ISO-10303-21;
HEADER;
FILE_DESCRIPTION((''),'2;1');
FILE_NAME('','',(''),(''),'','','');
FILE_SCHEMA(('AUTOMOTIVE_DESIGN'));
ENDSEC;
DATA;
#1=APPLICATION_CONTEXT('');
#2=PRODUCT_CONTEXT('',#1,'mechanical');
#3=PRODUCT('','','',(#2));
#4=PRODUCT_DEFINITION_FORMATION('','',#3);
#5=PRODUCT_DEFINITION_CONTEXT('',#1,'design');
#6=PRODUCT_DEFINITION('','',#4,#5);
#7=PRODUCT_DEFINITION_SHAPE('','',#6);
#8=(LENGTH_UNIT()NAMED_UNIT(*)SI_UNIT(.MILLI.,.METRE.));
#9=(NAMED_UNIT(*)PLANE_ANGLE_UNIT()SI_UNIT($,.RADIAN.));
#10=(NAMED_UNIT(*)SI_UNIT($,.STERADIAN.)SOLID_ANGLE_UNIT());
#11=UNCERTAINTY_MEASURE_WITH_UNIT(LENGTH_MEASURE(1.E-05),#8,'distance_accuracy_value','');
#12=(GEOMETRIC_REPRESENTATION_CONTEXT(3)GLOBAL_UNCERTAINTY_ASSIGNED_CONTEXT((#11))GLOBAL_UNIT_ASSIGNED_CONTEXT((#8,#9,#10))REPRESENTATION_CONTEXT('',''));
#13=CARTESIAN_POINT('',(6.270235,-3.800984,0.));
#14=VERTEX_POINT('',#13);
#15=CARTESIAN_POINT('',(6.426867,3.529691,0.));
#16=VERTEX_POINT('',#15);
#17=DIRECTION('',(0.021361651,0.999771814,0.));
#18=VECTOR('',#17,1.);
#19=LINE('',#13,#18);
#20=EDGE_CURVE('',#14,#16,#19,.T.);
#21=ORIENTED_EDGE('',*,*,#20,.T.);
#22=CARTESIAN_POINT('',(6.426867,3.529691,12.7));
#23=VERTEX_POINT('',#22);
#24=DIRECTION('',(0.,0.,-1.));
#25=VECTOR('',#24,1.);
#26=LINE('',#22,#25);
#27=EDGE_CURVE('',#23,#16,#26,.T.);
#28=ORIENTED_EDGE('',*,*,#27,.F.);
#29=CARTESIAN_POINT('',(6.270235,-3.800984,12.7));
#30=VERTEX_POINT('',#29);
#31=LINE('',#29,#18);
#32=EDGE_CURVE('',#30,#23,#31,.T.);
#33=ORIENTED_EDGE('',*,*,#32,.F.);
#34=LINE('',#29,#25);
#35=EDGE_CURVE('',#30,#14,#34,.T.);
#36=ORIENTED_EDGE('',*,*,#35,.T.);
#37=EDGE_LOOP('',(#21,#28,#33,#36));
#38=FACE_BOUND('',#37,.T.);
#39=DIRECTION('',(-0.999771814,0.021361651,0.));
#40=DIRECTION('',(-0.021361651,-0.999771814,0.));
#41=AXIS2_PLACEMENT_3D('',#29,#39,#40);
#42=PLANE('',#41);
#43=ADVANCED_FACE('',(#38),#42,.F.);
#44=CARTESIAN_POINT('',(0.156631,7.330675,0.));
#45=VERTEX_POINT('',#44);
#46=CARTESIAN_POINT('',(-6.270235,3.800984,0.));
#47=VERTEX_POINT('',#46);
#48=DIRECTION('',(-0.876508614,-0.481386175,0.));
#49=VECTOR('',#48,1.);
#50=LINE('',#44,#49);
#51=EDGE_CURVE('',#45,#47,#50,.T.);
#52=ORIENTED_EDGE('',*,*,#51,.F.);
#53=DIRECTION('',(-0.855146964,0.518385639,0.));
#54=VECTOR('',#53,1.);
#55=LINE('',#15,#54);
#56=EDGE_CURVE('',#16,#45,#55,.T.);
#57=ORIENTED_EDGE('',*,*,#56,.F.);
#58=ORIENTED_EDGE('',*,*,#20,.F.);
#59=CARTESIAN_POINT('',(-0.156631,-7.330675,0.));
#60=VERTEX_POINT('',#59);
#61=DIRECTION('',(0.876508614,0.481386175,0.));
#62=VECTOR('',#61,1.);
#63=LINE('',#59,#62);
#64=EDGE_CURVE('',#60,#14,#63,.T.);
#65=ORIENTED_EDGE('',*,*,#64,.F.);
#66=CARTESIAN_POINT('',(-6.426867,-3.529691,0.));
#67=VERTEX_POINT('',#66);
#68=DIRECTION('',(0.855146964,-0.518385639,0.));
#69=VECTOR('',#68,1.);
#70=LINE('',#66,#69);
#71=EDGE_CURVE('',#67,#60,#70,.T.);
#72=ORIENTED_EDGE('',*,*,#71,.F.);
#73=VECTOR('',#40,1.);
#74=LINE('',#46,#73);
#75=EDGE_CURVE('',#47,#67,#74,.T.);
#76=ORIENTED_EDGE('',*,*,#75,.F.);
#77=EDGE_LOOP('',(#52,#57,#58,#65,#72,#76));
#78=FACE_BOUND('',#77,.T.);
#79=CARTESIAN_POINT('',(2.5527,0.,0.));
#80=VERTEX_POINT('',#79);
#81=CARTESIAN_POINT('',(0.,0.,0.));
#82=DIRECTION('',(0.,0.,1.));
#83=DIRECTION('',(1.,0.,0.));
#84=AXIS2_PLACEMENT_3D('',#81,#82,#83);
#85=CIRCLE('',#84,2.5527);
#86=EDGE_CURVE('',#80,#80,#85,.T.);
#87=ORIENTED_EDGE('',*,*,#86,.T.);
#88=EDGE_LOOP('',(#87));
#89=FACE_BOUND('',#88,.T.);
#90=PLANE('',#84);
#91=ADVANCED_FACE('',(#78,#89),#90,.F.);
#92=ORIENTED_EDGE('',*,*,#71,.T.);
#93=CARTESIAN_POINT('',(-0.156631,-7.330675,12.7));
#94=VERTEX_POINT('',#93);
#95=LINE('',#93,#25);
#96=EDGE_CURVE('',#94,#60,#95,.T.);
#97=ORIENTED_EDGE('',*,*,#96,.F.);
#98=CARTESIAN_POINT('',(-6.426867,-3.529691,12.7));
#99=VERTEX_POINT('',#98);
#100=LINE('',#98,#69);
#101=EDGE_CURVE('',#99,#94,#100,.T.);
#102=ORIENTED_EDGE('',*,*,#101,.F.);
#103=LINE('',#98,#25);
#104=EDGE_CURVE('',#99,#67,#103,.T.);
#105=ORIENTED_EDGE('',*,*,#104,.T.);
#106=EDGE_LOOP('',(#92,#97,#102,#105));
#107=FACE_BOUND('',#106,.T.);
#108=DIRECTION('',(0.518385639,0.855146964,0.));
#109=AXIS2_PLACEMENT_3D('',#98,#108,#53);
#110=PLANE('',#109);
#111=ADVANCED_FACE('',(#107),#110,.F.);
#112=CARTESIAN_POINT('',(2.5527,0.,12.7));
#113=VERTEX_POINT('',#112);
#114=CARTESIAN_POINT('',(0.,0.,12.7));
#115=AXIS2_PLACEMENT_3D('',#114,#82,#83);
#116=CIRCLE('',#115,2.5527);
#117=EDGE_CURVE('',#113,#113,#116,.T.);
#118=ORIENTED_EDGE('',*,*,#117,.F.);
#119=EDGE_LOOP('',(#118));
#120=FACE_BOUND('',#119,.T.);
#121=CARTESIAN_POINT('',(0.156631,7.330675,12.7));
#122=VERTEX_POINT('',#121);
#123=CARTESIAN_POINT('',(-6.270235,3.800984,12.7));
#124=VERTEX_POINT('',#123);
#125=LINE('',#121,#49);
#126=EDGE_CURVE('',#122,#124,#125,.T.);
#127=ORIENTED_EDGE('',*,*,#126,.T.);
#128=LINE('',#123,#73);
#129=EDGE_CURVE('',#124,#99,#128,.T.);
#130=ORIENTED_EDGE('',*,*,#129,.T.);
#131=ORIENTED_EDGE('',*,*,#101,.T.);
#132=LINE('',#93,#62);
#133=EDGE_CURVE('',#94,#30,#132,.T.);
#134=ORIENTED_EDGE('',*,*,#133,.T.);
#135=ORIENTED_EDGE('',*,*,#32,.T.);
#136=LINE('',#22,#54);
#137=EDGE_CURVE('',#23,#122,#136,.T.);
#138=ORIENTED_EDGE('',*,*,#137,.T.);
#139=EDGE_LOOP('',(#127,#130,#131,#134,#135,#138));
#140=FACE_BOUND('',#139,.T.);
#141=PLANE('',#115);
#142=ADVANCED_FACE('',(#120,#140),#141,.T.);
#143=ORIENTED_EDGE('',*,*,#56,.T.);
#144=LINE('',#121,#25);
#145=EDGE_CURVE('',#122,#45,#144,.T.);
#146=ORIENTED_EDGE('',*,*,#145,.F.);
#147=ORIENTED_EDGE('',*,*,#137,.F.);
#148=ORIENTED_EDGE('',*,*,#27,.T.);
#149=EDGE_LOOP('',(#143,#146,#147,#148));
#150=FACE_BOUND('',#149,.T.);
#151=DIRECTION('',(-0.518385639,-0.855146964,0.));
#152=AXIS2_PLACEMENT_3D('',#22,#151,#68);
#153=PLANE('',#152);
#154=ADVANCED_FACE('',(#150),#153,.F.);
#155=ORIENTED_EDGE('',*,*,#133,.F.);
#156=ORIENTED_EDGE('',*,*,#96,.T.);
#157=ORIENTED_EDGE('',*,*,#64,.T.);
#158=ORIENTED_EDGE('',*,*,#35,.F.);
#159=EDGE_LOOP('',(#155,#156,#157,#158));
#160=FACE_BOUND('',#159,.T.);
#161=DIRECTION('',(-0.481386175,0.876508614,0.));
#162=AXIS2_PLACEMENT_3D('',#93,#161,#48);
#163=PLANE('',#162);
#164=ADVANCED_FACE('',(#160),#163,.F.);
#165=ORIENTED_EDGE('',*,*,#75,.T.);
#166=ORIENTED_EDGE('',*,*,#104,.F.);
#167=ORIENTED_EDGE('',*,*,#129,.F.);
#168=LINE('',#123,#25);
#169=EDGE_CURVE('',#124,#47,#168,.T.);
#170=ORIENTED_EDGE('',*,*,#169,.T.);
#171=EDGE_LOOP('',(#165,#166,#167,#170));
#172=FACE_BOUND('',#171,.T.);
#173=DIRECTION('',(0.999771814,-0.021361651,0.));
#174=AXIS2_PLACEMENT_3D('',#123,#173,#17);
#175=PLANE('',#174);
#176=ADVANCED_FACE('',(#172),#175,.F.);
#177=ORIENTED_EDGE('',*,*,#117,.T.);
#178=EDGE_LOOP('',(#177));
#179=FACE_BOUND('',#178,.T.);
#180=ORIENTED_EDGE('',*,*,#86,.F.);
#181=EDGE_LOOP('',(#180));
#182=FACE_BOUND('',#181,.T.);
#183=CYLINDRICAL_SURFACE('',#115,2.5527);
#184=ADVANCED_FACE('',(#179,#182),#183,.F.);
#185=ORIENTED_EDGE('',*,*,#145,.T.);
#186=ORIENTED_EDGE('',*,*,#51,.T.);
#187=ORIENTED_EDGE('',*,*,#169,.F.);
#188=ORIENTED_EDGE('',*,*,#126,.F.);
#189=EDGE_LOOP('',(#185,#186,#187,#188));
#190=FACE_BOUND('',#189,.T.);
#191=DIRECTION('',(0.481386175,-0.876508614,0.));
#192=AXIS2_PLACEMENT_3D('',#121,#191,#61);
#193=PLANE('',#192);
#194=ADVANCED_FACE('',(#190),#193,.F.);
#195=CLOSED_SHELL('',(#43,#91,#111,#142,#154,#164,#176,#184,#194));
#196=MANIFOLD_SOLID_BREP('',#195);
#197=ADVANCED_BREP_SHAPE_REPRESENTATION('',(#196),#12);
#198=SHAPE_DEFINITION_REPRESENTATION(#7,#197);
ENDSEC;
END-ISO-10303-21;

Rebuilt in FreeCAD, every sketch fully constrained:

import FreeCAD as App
import Part
import Sketcher
Q = App.Units.Quantity

doc = App.newDocument("Part")
params = doc.addObject("Spreadsheet::Sheet", "Params")
for row, (alias, value) in enumerate([
    ("pad1_length", "0.5 in"),
    ("sketch2_diameter", "0.201 in"),
    ("hole_diameter", "0.201 in"),
], start=1):
    params.set(f"A{row}", alias)
    params.set(f"B{row}", "=" + value)
    params.setAlias(f"B{row}", alias)

body = doc.addObject("PartDesign::Body", "Body")

sketch1 = body.newObject("Sketcher::SketchObject", "Sketch")
sketch1.AttachmentSupport = (doc.getObject("XY_Plane"), [""])
sketch1.MapMode = "FlatFace"
sketch1.addGeometry(Part.LineSegment(App.Vector(6.270235, -3.800984, 0), App.Vector(6.426867, 3.529691, 0)), False)
sketch1.addGeometry(Part.LineSegment(App.Vector(6.426867, 3.529691, 0), App.Vector(0.156631, 7.330675, 0)), False)
sketch1.addGeometry(Part.LineSegment(App.Vector(0.156631, 7.330675, 0), App.Vector(-6.270235, 3.800984, 0)), False)
sketch1.addGeometry(Part.LineSegment(App.Vector(-6.270235, 3.800984, 0), App.Vector(-6.426867, -3.529691, 0)), False)
sketch1.addGeometry(Part.LineSegment(App.Vector(-6.426867, -3.529691, 0), App.Vector(-0.156631, -7.330675, 0)), False)
sketch1.addGeometry(Part.LineSegment(App.Vector(-0.156631, -7.330675, 0), App.Vector(6.270235, -3.800984, 0)), False)
sketch1.addConstraint(Sketcher.Constraint("Coincident", 0, 2, 1, 1))
sketch1.addConstraint(Sketcher.Constraint("Coincident", 1, 2, 2, 1))
sketch1.addConstraint(Sketcher.Constraint("Coincident", 2, 2, 3, 1))
sketch1.addConstraint(Sketcher.Constraint("Coincident", 3, 2, 4, 1))
sketch1.addConstraint(Sketcher.Constraint("Coincident", 4, 2, 5, 1))
sketch1.addConstraint(Sketcher.Constraint("Coincident", 5, 2, 0, 1))
sketch1.addConstraint(Sketcher.Constraint("Symmetric", 0, 2, 3, 2, -1, 1))
sketch1.addConstraint(Sketcher.Constraint("Symmetric", 1, 2, 4, 2, -1, 1))
sketch1.addConstraint(Sketcher.Constraint("Symmetric", 2, 2, 5, 2, -1, 1))
sketch1.addConstraint(Sketcher.Constraint("Equal", 0, 1))
sketch1.addConstraint(Sketcher.Constraint("Equal", 1, 2))
sketch1.addConstraint(Sketcher.Constraint("Distance", 0, 7.332348))
sketch1.addConstraint(Sketcher.Constraint("DistanceY", -1, 1, 0, 2, 3.529691))
sketch1.addConstraint(Sketcher.Constraint("DistanceX", -1, 1, 1, 2, 0.156631))
sketch1.addConstraint(Sketcher.Constraint("DistanceY", 2, 2, 1, 2, 3.529691))
pad1 = body.newObject("PartDesign::Pad", "Pad")
pad1.Profile = sketch1
pad1.setExpression("Length", "Params.pad1_length")

sketch2 = body.newObject("Sketcher::SketchObject", "Sketch001")
sketch2.AttachmentSupport = (doc.getObject("XY_Plane"), [""])
sketch2.MapMode = "FlatFace"
sketch2.AttachmentOffset = App.Placement(App.Vector(0, 0, 0.5 * 25.4), App.Rotation())
sketch2.addGeometry(Part.Circle(App.Vector(0, 0, 0), App.Vector(0, 0, 1), 2.5527), False)
sketch2.addConstraint(Sketcher.Constraint("Coincident", 0, 3, -1, 1))
sketch2.addConstraint(Sketcher.Constraint("Diameter", 0, Q("0.201 in")))
sketch2.setExpression("Constraints[1]", "Params.sketch2_diameter")
doc.recompute()
hole = body.newObject("PartDesign::Hole", "Hole")
hole.Profile = sketch2
hole.ThreadType = "None"
hole.setExpression("Diameter", "Params.hole_diameter")
hole.DepthType = "ThroughAll"

doc.recompute()
